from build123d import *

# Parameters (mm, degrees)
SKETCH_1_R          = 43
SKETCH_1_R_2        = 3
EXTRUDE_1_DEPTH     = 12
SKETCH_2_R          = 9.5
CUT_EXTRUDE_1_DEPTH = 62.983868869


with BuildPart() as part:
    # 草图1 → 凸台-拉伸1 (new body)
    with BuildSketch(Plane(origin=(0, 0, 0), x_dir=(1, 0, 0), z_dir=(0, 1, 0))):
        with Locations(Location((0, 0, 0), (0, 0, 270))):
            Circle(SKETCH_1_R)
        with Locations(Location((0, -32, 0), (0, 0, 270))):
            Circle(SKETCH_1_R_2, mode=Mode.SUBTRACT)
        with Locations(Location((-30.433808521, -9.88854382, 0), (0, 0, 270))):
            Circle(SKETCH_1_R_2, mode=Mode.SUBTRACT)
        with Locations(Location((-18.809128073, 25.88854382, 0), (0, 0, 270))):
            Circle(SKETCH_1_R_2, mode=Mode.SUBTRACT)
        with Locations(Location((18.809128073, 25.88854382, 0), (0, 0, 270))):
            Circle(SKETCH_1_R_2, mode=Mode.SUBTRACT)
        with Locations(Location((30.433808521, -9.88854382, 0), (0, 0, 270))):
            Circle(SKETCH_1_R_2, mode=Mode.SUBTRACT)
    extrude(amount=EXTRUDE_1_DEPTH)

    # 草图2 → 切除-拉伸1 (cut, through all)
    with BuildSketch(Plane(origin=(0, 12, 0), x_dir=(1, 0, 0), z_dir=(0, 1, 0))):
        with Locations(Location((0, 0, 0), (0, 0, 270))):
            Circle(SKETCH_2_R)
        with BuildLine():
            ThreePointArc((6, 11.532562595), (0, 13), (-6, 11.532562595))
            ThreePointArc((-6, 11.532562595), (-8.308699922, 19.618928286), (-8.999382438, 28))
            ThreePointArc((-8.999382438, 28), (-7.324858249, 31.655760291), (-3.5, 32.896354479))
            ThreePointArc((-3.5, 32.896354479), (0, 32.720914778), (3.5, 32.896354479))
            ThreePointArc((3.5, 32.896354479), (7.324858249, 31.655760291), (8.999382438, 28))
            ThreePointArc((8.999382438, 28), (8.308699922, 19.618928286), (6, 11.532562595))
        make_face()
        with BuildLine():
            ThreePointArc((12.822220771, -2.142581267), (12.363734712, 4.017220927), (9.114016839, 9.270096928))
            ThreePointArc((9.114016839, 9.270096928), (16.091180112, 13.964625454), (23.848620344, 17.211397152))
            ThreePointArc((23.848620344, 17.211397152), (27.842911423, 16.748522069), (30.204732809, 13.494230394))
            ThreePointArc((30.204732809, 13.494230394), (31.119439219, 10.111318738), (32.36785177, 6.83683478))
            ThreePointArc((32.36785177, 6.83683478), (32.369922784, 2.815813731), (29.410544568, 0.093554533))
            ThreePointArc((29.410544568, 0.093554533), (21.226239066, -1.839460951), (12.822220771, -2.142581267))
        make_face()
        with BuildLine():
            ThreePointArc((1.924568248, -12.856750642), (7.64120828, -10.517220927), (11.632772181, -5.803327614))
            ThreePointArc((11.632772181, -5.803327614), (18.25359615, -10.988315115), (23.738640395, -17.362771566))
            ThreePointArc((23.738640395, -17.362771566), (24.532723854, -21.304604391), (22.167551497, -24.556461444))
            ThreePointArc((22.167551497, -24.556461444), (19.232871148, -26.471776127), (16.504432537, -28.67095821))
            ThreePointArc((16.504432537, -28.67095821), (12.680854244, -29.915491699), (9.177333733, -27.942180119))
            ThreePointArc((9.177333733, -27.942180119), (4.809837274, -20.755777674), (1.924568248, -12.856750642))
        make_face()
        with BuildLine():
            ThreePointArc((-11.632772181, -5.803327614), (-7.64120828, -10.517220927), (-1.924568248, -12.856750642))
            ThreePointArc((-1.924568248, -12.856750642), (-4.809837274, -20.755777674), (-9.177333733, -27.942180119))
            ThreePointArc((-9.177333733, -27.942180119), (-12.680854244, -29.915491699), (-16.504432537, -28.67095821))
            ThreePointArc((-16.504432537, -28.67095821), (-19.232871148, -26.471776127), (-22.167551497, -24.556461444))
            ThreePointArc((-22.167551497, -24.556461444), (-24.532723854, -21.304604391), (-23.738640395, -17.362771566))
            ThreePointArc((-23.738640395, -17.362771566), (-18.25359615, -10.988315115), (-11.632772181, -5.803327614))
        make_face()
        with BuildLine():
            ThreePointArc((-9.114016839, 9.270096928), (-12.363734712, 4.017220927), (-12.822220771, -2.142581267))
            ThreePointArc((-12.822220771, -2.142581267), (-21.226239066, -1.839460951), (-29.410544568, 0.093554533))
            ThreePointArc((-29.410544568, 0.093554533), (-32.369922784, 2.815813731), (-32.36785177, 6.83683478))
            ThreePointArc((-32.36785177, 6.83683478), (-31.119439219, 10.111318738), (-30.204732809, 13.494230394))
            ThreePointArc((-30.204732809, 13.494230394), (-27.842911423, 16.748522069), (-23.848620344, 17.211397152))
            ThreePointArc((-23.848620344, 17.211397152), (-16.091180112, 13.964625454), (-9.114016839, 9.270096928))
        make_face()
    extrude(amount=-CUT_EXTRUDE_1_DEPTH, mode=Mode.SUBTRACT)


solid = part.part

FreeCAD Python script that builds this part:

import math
import FreeCAD as App
import Part
import Sketcher

doc = App.newDocument("Part")
params = doc.addObject("Spreadsheet::Sheet", "Params")
for row, (alias, value) in enumerate([
    ("sketch1_diameter", "86 mm"),
    ("sketch1_diameter2", "6 mm"),
    ("pad1_length", "12 mm"),
    ("sketch2_diameter", "19 mm"),
    ("sketch2_radius", "13 mm"),
    ("sketch2_radius2", "43 mm"),
    ("sketch2_radius3", "5 mm"),
    ("sketch2_radius4", "35 mm"),
], start=1):
    params.set(f"A{row}", alias)
    params.set(f"B{row}", "=" + value)
    params.setAlias(f"B{row}", alias)

body = doc.addObject("PartDesign::Body", "Body")

sketch1 = body.newObject("Sketcher::SketchObject", "Sketch")
sketch1.AttachmentSupport = (doc.getObject("XZ_Plane"), [""])
sketch1.MapMode = "FlatFace"
sketch1.addGeometry([
    Part.Circle(App.Vector(0, 0, 0), App.Vector(0, 0, 1), 43),
    Part.Circle(App.Vector(-18.809128, -25.888544, 0), App.Vector(0, 0, 1), 3),
    Part.Circle(App.Vector(-30.433809, 9.888544, 0), App.Vector(0, 0, 1), 3),
    Part.Circle(App.Vector(18.809128, -25.888544, 0), App.Vector(0, 0, 1), 3),
    Part.Circle(App.Vector(0, 32, 0), App.Vector(0, 0, 1), 3),
    Part.Circle(App.Vector(30.433809, 9.888544, 0), App.Vector(0, 0, 1), 3),
], False)
sketch1.addConstraint([
    Sketcher.Constraint("Coincident", 0, 3, -1, 1),
    Sketcher.Constraint("Equal", 1, 2),
    Sketcher.Constraint("Equal", 2, 3),
    Sketcher.Constraint("Equal", 3, 4),
    Sketcher.Constraint("Equal", 4, 5),
    Sketcher.Constraint("Symmetric", 1, 3, 3, 3, -2),
    Sketcher.Constraint("Symmetric", 2, 3, 5, 3, -2),
    Sketcher.Constraint("PointOnObject", 4, 3, -2),
    Sketcher.Constraint("Diameter", 0, 86.0),
    Sketcher.Constraint("Diameter", 1, 6.0),
    Sketcher.Constraint("DistanceY", -1, 1, 4, 3, 32.0),
    Sketcher.Constraint("DistanceX", 1, 3, -1, 1, 18.809128),
    Sketcher.Constraint("DistanceX", 2, 3, -1, 1, 30.433809),
    Sketcher.Constraint("DistanceY", 1, 3, -1, 1, 25.888544),
    Sketcher.Constraint("DistanceY", -1, 1, 2, 3, 9.888544),
])
sketch1.setExpression("Constraints[8]", "Params.sketch1_diameter")
sketch1.setExpression("Constraints[9]", "Params.sketch1_diameter2")
pad1 = body.newObject("PartDesign::Pad", "Pad")
pad1.Profile = sketch1
pad1.setExpression("Length", "Params.pad1_length")
pad1.Reversed = True

sketch2 = body.newObject("Sketcher::SketchObject", "Sketch001")
sketch2.AttachmentSupport = (doc.getObject("XZ_Plane"), [""])
sketch2.MapMode = "FlatFace"
sketch2.AttachmentOffset = App.Placement(App.Vector(0, 0, -12), App.Rotation())
sketch2.addGeometry([
    Part.Circle(App.Vector(0, 0, 0), App.Vector(0, 0, 1), 9.5),
    Part.ArcOfCircle(Part.Circle(App.Vector(0, 0, 0), App.Vector(0, 0, 1), 13), math.radians(-117.486426), math.radians(-62.513574)),
    Part.ArcOfCircle(Part.Circle(App.Vector(-33.995307, -27.324189, 0), App.Vector(0, 0, 1), 43), math.radians(-0.900529), math.radians(21.54594)),
    Part.ArcOfCircle(Part.Circle(App.Vector(4, -27.921417, 0), App.Vector(0, 0, 1), 5), math.radians(-95.73917), math.radians(-0.900529)),
    Part.ArcOfCircle(Part.Circle(App.Vector(0, -67.720915, 0), App.Vector(0, 0, 1), 35), math.radians(84.26083), math.radians(95.73917)),
    Part.ArcOfCircle(Part.Circle(App.Vector(-4, -27.921417, 0), App.Vector(0, 0, 1), 5), math.radians(-179.099471), math.radians(-84.26083)),
    Part.ArcOfCircle(Part.Circle(App.Vector(33.995307, -27.324189, 0), App.Vector(0, 0, 1), 43), math.radians(158.45406), math.radians(180.900529)),
    Part.ArcOfCircle(Part.Circle(App.Vector(0, 0, 0), App.Vector(0, 0, 1), 13), math.radians(-45.486426), math.radians(9.486426)),
    Part.ArcOfCircle(Part.Circle(App.Vector(15.48172, -40.775096, 0), App.Vector(0, 0, 1), 43), math.radians(71.099471), math.radians(93.54594)),
    Part.ArcOfCircle(Part.Circle(App.Vector(27.790914, -4.823966, 0), App.Vector(0, 0, 1), 5), math.radians(-23.73917), math.radians(71.099471)),
    Part.ArcOfCircle(Part.Circle(App.Vector(64.406417, -20.926914, 0), App.Vector(0, 0, 1), 35), math.radians(156.26083), math.radians(167.73917)),
    Part.ArcOfCircle(Part.Circle(App.Vector(25.318778, -12.432419, 0), App.Vector(0, 0, 1), 5), math.radians(-107.099471), math.radians(-12.26083)),
    Part.ArcOfCircle(Part.Circle(App.Vector(36.491975, 23.887819, 0), App.Vector(0, 0, 1), 43), math.radians(-129.54594), math.radians(-107.099471)),
    Part.ArcOfCircle(Part.Circle(App.Vector(0, 0, 0), App.Vector(0, 0, 1), 13), math.radians(26.513574), math.radians(81.486426)),
    Part.ArcOfCircle(Part.Circle(App.Vector(43.563536, 2.123793, 0), App.Vector(0, 0, 1), 43), math.radians(143.099471), math.radians(165.54594)),
    Part.ArcOfCircle(Part.Circle(App.Vector(13.175729, 24.940042, 0), App.Vector(0, 0, 1), 5), math.radians(48.26083), math.radians(143.099471)),
    Part.ArcOfCircle(Part.Circle(App.Vector(39.805355, 54.787371, 0), App.Vector(0, 0, 1), 35), math.radians(-131.73917), math.radians(-120.26083)),
    Part.ArcOfCircle(Part.Circle(App.Vector(19.647865, 20.23776, 0), App.Vector(0, 0, 1), 5), math.radians(-35.099471), math.radians(59.73917)),
    Part.ArcOfCircle(Part.Circle(App.Vector(-11.442026, 42.087673, 0), App.Vector(0, 0, 1), 43), math.radians(-57.54594), math.radians(-35.099471)),
    Part.ArcOfCircle(Part.Circle(App.Vector(0, 0, 0), App.Vector(0, 0, 1), 13), math.radians(98.513574), math.radians(153.486426)),
    Part.ArcOfCircle(Part.Circle(App.Vector(11.442026, 42.087673, 0), App.Vector(0, 0, 1), 43), math.radians(-144.900529), math.radians(-122.45406)),
    Part.ArcOfCircle(Part.Circle(App.Vector(-19.647865, 20.23776, 0), App.Vector(0, 0, 1), 5), math.radians(120.26083), math.radians(215.099471)),
    Part.ArcOfCircle(Part.Circle(App.Vector(-39.805355, 54.787371, 0), App.Vector(0, 0, 1), 35), math.radians(-59.73917), math.radians(-48.26083)),
    Part.ArcOfCircle(Part.Circle(App.Vector(-13.175729, 24.940042, 0), App.Vector(0, 0, 1), 5), math.radians(36.900529), math.radians(131.73917)),
    Part.ArcOfCircle(Part.Circle(App.Vector(-43.563536, 2.123793, 0), App.Vector(0, 0, 1), 43), math.radians(14.45406), math.radians(36.900529)),
    Part.ArcOfCircle(Part.Circle(App.Vector(0, 0, 0), App.Vector(0, 0, 1), 13), math.radians(170.513574), math.radians(225.486426)),
    Part.ArcOfCircle(Part.Circle(App.Vector(-36.491975, 23.887819, 0), App.Vector(0, 0, 1), 43), math.radians(-72.900529), math.radians(-50.45406)),
    Part.ArcOfCircle(Part.Circle(App.Vector(-25.318778, -12.432419, 0), App.Vector(0, 0, 1), 5), math.radians(-167.73917), math.radians(-72.900529)),
    Part.ArcOfCircle(Part.Circle(App.Vector(-64.406417, -20.926914, 0), App.Vector(0, 0, 1), 35), math.radians(12.26083), math.radians(23.73917)),
    Part.ArcOfCircle(Part.Circle(App.Vector(-27.790914, -4.823966, 0), App.Vector(0, 0, 1), 5), math.radians(108.900529), math.radians(203.73917)),
    Part.ArcOfCircle(Part.Circle(App.Vector(-15.48172, -40.775096, 0), App.Vector(0, 0, 1), 43), math.radians(86.45406), math.radians(108.900529)),
], False)
sketch2.addConstraint([
    Sketcher.Constraint("Coincident", 1, 2, 2, 2),
    Sketcher.Constraint("Tangent", 2, 1, 3, 2),
    Sketcher.Constraint("Tangent", 3, 1, 4, 1),
    Sketcher.Constraint("Tangent", 4, 2, 5, 2),
    Sketcher.Constraint("Tangent", 5, 1, 6, 2),
    Sketcher.Constraint("Coincident", 6, 1, 1, 1),
    Sketcher.Constraint("Coincident", 7, 2, 8, 2),
    Sketcher.Constraint("Tangent", 8, 1, 9, 2),
    Sketcher.Constraint("Tangent", 9, 1, 10, 1),
    Sketcher.Constraint("Tangent", 10, 2, 11, 2),
    Sketcher.Constraint("Tangent", 11, 1, 12, 2),
    Sketcher.Constraint("Coincident", 12, 1, 7, 1),
    Sketcher.Constraint("Coincident", 13, 2, 14, 2),
    Sketcher.Constraint("Tangent", 14, 1, 15, 2),
    Sketcher.Constraint("Tangent", 15, 1, 16, 1),
    Sketcher.Constraint("Tangent", 16, 2, 17, 2),
    Sketcher.Constraint("Tangent", 17, 1, 18, 2),
    Sketcher.Constraint("Coincident", 18, 1, 13, 1),
    Sketcher.Constraint("Coincident", 19, 2, 20, 2),
    Sketcher.Constraint("Tangent", 20, 1, 21, 2),
    Sketcher.Constraint("Tangent", 21, 1, 22, 1),
    Sketcher.Constraint("Tangent", 22, 2, 23, 2),
    Sketcher.Constraint("Tangent", 23, 1, 24, 2),
    Sketcher.Constraint("Coincident", 24, 1, 19, 1),
    Sketcher.Constraint("Coincident", 25, 2, 26, 2),
    Sketcher.Constraint("Tangent", 26, 1, 27, 2),
    Sketcher.Constraint("Tangent", 27, 1, 28, 1),
    Sketcher.Constraint("Tangent", 28, 2, 29, 2),
    Sketcher.Constraint("Tangent", 29, 1, 30, 2),
    Sketcher.Constraint("Coincident", 30, 1, 25, 1),
    Sketcher.Constraint("Coincident", 0, 3, -1, 1),
    Sketcher.Constraint("Coincident", 1, 3, -1, 1),
    Sketcher.Constraint("Coincident", 7, 3, -1, 1),
    Sketcher.Constraint("Coincident", 13, 3, -1, 1),
    Sketcher.Constraint("Coincident", 19, 3, -1, 1),
    Sketcher.Constraint("Coincident", 25, 3, -1, 1),
    Sketcher.Constraint("Equal", 3, 5),
    Sketcher.Constraint("Equal", 2, 6),
    Sketcher.Constraint("Equal", 1, 7),
    Sketcher.Constraint("Equal", 6, 8),
    Sketcher.Constraint("Equal", 5, 9),
    Sketcher.Constraint("Equal", 4, 10),
    Sketcher.Constraint("Equal", 9, 11),
    Sketcher.Constraint("Equal", 8, 12),
    Sketcher.Constraint("Equal", 7, 13),
    Sketcher.Constraint("Equal", 12, 14),
    Sketcher.Constraint("Equal", 11, 15),
    Sketcher.Constraint("Equal", 10, 16),
    Sketcher.Constraint("Equal", 15, 17),
    Sketcher.Constraint("Equal", 14, 18),
    Sketcher.Constraint("Equal", 13, 19),
    Sketcher.Constraint("Equal", 18, 20),
    Sketcher.Constraint("Equal", 17, 21),
    Sketcher.Constraint("Equal", 16, 22),
    Sketcher.Constraint("Equal", 21, 23),
    Sketcher.Constraint("Equal", 20, 24),
    Sketcher.Constraint("Equal", 19, 25),
    Sketcher.Constraint("Equal", 24, 26),
    Sketcher.Constraint("Equal", 23, 27),
    Sketcher.Constraint("Equal", 22, 28),
    Sketcher.Constraint("Equal", 27, 29),
    Sketcher.Constraint("Equal", 26, 30),
    Sketcher.Constraint("Symmetric", 3, 3, 5, 3, -2),
    Sketcher.Constraint("Symmetric", 18, 3, 20, 3, -2),
    Sketcher.Constraint("Symmetric", 16, 3, 22, 3, -2),
    Sketcher.Constraint("Symmetric", 14, 3, 24, 3, -2),
    Sketcher.Constraint("Symmetric", 12, 3, 26, 3, -2),
    Sketcher.Constraint("Symmetric", 10, 3, 28, 3, -2),
    Sketcher.Constraint("Symmetric", 8, 3, 30, 3, -2),
    Sketcher.Constraint("Horizontal", 2, 3, 6, 3),
    Sketcher.Constraint("Diameter", 0, 19.0),
    Sketcher.Constraint("Radius", 1, 13.0),
    Sketcher.Constraint("Radius", 2, 43.0),
    Sketcher.Constraint("Radius", 3, 5.0),
    Sketcher.Constraint("Radius", 4, 35.0),
    Sketcher.Constraint("DistanceX", -1, 1, 3, 3, 4.0),
    Sketcher.Constraint("DistanceX", -1, 1, 1, 2, 6.0),
    Sketcher.Constraint("DistanceY", 2, 1, -1, 1, 28.0),
    Sketcher.Constraint("DistanceX", -1, 1, 8, 3, 15.48172),
    Sketcher.Constraint("DistanceY", 11, 3, -1, 1, 12.432419),
    Sketcher.Constraint("DistanceY", -1, 1, 12, 3, 23.887819),
    Sketcher.Constraint("DistanceX", -1, 1, 15, 3, 13.175729),
    Sketcher.Constraint("DistanceY", -1, 1, 16, 3, 54.787371),
    Sketcher.Constraint("DistanceY", -1, 1, 17, 3, 20.23776),
    Sketcher.Constraint("DistanceX", -1, 1, 7, 2, 12.822221),
    Sketcher.Constraint("DistanceX", -1, 1, 9, 1, 32.367852),
    Sketcher.Constraint("DistanceY", 10, 2, -1, 1, 13.49423),
    Sketcher.Constraint("DistanceX", -1, 1, 13, 2, 1.924568),
    Sketcher.Constraint("DistanceY", -1, 1, 14, 1, 27.94218),
    Sketcher.Constraint("DistanceX", -1, 1, 17, 1, 23.73864),
])
sketch2.setExpression("Constraints[70]", "Params.sketch2_diameter")
sketch2.setExpression("Constraints[71]", "Params.sketch2_radius")
sketch2.setExpression("Constraints[72]", "Params.sketch2_radius2")
sketch2.setExpression("Constraints[73]", "Params.sketch2_radius3")
sketch2.setExpression("Constraints[74]", "Params.sketch2_radius4")
pocket1 = body.newObject("PartDesign::Pocket", "Pocket")
pocket1.Profile = sketch2
pocket1.Type = "ThroughAll"
pocket1.Reversed = True

doc.recompute()
